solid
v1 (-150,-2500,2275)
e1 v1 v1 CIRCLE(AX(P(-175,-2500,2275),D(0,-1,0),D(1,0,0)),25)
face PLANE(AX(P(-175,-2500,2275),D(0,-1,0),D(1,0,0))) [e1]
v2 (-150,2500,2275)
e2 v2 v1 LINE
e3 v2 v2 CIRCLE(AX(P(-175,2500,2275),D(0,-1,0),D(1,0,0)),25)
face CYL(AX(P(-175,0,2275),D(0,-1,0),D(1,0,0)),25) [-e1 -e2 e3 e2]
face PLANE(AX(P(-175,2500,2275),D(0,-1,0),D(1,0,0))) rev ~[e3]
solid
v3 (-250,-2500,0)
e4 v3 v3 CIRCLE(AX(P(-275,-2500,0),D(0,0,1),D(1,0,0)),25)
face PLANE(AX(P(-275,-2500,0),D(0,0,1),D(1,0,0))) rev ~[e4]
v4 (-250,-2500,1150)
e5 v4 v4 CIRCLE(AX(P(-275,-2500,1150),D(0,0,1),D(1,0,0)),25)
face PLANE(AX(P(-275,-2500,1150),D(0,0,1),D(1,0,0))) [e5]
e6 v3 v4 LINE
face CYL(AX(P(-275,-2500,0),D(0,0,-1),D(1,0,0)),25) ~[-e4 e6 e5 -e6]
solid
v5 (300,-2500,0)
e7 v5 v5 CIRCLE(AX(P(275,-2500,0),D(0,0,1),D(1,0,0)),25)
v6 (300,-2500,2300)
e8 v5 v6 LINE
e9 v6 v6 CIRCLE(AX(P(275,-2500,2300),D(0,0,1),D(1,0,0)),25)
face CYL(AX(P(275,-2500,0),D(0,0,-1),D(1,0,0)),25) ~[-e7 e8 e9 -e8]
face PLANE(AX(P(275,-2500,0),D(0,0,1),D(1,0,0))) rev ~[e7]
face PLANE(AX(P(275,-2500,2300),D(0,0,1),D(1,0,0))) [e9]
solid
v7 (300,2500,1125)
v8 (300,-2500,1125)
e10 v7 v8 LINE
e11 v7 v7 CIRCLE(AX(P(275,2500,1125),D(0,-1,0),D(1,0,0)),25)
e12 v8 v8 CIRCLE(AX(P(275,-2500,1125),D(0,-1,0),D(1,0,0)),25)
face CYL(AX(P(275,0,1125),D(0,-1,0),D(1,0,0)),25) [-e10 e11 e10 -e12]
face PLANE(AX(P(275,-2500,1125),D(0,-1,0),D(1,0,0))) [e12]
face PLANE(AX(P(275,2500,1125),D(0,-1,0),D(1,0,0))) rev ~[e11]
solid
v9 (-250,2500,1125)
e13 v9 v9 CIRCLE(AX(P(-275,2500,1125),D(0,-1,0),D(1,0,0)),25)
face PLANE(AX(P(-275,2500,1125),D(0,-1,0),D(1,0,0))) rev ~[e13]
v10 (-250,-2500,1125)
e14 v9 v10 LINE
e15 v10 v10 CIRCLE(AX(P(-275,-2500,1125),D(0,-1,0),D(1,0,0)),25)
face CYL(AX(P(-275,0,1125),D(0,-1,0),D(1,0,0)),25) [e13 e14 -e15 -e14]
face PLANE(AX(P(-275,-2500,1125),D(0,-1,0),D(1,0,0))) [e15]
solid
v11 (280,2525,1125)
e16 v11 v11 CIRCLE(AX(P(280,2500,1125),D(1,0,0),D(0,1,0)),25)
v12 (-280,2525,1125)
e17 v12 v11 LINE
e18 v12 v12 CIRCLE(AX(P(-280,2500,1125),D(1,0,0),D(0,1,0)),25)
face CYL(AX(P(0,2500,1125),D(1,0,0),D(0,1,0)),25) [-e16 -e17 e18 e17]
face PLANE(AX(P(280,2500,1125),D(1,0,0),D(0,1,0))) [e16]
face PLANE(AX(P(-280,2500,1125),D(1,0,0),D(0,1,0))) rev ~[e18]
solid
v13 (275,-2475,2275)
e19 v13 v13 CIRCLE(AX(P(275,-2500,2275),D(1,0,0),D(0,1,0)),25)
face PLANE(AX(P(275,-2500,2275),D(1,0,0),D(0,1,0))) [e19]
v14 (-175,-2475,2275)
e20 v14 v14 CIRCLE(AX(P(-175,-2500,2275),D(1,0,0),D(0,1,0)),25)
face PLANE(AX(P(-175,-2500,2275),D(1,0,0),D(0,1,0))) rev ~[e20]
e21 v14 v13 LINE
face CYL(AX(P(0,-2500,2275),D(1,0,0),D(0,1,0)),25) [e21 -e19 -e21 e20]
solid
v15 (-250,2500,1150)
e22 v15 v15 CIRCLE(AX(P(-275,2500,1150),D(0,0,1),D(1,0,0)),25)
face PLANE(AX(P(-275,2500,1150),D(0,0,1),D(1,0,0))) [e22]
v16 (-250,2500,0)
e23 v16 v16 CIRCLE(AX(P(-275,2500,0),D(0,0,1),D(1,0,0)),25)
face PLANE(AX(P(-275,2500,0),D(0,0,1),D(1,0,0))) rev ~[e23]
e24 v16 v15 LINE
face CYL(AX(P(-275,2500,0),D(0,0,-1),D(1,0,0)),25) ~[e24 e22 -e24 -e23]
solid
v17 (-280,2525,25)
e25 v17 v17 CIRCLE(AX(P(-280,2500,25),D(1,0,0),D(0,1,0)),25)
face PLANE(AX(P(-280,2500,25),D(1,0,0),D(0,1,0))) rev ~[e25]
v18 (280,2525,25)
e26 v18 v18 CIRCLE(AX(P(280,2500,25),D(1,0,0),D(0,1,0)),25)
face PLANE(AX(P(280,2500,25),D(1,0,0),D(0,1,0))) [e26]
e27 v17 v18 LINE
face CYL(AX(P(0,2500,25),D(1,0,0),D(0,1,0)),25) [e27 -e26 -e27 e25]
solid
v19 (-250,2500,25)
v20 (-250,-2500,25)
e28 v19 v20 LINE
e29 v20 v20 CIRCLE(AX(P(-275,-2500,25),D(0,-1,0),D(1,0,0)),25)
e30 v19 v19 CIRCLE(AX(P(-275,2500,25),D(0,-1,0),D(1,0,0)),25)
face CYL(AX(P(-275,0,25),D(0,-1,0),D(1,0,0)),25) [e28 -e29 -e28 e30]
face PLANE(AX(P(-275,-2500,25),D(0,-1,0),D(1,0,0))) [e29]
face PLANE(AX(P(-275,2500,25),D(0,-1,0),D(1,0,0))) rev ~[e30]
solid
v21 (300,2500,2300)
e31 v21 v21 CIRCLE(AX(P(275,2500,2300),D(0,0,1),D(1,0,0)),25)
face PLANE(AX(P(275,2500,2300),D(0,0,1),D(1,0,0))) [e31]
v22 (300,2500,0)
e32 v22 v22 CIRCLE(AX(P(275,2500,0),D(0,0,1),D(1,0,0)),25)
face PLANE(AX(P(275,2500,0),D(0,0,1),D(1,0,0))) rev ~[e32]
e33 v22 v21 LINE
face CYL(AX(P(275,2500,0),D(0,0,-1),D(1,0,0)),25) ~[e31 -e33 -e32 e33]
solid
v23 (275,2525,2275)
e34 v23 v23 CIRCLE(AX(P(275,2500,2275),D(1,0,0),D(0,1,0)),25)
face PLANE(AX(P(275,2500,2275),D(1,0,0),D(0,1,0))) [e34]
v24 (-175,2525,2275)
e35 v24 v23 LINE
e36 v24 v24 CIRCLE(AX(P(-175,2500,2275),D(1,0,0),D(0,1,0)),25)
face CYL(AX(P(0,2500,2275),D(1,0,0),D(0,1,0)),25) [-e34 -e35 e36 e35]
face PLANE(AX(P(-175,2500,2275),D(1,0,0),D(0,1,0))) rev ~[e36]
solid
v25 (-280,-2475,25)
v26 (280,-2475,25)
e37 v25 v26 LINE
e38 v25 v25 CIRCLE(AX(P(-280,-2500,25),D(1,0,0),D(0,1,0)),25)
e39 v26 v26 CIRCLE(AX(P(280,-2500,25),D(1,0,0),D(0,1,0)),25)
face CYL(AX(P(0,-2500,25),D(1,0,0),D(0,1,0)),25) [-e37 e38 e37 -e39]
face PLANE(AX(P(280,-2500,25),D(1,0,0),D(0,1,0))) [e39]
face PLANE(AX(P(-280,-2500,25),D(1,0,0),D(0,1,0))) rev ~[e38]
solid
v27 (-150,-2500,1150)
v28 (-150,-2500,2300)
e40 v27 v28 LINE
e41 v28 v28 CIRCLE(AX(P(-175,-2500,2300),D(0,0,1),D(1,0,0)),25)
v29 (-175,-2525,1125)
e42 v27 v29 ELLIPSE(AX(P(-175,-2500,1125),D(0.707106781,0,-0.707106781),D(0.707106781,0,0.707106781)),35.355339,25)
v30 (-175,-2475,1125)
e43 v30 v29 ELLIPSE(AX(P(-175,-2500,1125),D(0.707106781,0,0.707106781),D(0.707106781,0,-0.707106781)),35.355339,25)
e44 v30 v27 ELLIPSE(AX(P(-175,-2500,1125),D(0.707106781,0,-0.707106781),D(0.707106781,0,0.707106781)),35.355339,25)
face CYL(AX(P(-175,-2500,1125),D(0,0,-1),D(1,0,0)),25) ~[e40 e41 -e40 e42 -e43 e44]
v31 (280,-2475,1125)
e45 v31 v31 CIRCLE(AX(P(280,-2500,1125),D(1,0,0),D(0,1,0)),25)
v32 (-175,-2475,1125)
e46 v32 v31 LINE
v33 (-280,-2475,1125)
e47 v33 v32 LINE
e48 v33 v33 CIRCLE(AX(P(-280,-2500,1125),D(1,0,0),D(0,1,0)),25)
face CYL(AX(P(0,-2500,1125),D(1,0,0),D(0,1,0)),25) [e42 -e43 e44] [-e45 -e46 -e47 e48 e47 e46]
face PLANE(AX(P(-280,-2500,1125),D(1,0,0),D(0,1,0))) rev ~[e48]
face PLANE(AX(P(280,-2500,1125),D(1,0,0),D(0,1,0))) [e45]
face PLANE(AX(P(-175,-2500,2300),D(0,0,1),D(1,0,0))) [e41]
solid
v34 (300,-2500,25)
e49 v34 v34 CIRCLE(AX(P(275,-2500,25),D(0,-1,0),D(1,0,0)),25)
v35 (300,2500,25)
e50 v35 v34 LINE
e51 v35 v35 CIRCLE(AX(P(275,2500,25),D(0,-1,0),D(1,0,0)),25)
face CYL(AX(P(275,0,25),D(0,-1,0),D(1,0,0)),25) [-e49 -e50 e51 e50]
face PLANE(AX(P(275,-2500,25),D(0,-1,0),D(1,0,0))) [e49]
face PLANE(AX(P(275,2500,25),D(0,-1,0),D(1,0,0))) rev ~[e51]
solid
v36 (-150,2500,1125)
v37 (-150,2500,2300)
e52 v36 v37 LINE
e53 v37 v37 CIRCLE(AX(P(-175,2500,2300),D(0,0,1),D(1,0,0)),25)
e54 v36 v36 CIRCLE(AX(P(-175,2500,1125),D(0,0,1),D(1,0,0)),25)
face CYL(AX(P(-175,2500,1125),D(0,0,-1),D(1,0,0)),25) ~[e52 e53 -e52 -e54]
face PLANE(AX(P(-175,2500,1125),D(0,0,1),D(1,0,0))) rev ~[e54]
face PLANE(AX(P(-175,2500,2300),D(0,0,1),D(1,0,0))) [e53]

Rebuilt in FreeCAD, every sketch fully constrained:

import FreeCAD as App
import Part
import Sketcher

doc = App.newDocument("Part")
body = doc.addObject("PartDesign::Body", "Body")

# Sketch on XY plane
sketch1 = body.newObject("Sketcher::SketchObject", "Sketch")
sketch1.AttachmentSupport = (doc.getObject("XY_Plane"), [""])
sketch1.MapMode = "FlatFace"
sketch1.addGeometry(Part.Circle(App.Vector(275, 2500, 0), App.Vector(0, 0, 1), 25), False)
sketch1.addConstraint([
    Sketcher.Constraint("Diameter", 0, 50.0),
    Sketcher.Constraint("DistanceX", -1, 1, 0, 3, 275.0),
    Sketcher.Constraint("DistanceY", -1, 1, 0, 3, 2500.0),
])
pad1 = body.newObject("PartDesign::Pad", "Pad")
pad1.Profile = sketch1
pad1.Length = 2300
body2 = doc.addObject("PartDesign::Body", "Body001")

# Sketch on XY plane
sketch2 = body2.newObject("Sketcher::SketchObject", "Sketch001")
sketch2.AttachmentSupport = (doc.getObject("XY_Plane001"), [""])
sketch2.MapMode = "FlatFace"
sketch2.addGeometry(Part.Circle(App.Vector(275, -2500, 0), App.Vector(0, 0, 1), 25), False)
sketch2.addConstraint([
    Sketcher.Constraint("Diameter", 0, 50.0),
    Sketcher.Constraint("DistanceX", -1, 1, 0, 3, 275.0),
    Sketcher.Constraint("DistanceY", 0, 3, -1, 1, 2500.0),
])
pad2 = body2.newObject("PartDesign::Pad", "Pad001")
pad2.Profile = sketch2
pad2.Length = 2300
body3 = doc.addObject("PartDesign::Body", "Body002")

# Sketch on XY plane
sketch3 = body3.newObject("Sketcher::SketchObject", "Sketch002")
sketch3.AttachmentSupport = (doc.getObject("XY_Plane002"), [""])
sketch3.MapMode = "FlatFace"
sketch3.addGeometry(Part.Circle(App.Vector(-275, -2500, 0), App.Vector(0, 0, 1), 25), False)
sketch3.addConstraint([
    Sketcher.Constraint("Diameter", 0, 50.0),
    Sketcher.Constraint("DistanceX", 0, 3, -1, 1, 275.0),
    Sketcher.Constraint("DistanceY", 0, 3, -1, 1, 2500.0),
])
pad3 = body3.newObject("PartDesign::Pad", "Pad002")
pad3.Profile = sketch3
pad3.Length = 1150
body4 = doc.addObject("PartDesign::Body", "Body003")

# Sketch on XY plane
sketch4 = body4.newObject("Sketcher::SketchObject", "Sketch003")
sketch4.AttachmentSupport = (doc.getObject("XY_Plane003"), [""])
sketch4.MapMode = "FlatFace"
sketch4.addGeometry(Part.Circle(App.Vector(-275, 2500, 0), App.Vector(0, 0, 1), 25), False)
sketch4.addConstraint([
    Sketcher.Constraint("Diameter", 0, 50.0),
    Sketcher.Constraint("DistanceX", 0, 3, -1, 1, 275.0),
    Sketcher.Constraint("DistanceY", -1, 1, 0, 3, 2500.0),
])
pad4 = body4.newObject("PartDesign::Pad", "Pad003")
pad4.Profile = sketch4
pad4.Length = 1150
body5 = doc.addObject("PartDesign::Body", "Body004")

# Sketch on XZ plane
sketch5 = body5.newObject("Sketcher::SketchObject", "Sketch004")
sketch5.AttachmentSupport = (doc.getObject("XZ_Plane004"), [""])
sketch5.MapMode = "FlatFace"
sketch5.addGeometry(Part.Circle(App.Vector(275, 25, 0), App.Vector(0, 0, 1), 25), False)
sketch5.addConstraint([
    Sketcher.Constraint("Diameter", 0, 50.0),
    Sketcher.Constraint("DistanceX", -1, 1, 0, 3, 275.0),
    Sketcher.Constraint("DistanceY", -1, 1, 0, 3, 25.0),
])
pad5 = body5.newObject("PartDesign::Pad", "Pad004")
pad5.Profile = sketch5
pad5.Type = "TwoLengths"
pad5.Length = 2500
pad5.Length2 = 2500
body6 = doc.addObject("PartDesign::Body", "Body005")

# Sketch on XZ plane
sketch6 = body6.newObject("Sketcher::SketchObject", "Sketch005")
sketch6.AttachmentSupport = (doc.getObject("XZ_Plane005"), [""])
sketch6.MapMode = "FlatFace"
sketch6.addGeometry(Part.Circle(App.Vector(275, 1125, 0), App.Vector(0, 0, 1), 25), False)
sketch6.addConstraint([
    Sketcher.Constraint("Diameter", 0, 50.0),
    Sketcher.Constraint("DistanceX", -1, 1, 0, 3, 275.0),
    Sketcher.Constraint("DistanceY", -1, 1, 0, 3, 1125.0),
])
pad6 = body6.newObject("PartDesign::Pad", "Pad005")
pad6.Profile = sketch6
pad6.Type = "TwoLengths"
pad6.Length = 2500
pad6.Length2 = 2500
body7 = doc.addObject("PartDesign::Body", "Body006")

# Sketch on XZ plane
sketch7 = body7.newObject("Sketcher::SketchObject", "Sketch006")
sketch7.AttachmentSupport = (doc.getObject("XZ_Plane006"), [""])
sketch7.MapMode = "FlatFace"
sketch7.addGeometry(Part.Circle(App.Vector(-275, 1125, 0), App.Vector(0, 0, 1), 25), False)
sketch7.addConstraint([
    Sketcher.Constraint("Diameter", 0, 50.0),
    Sketcher.Constraint("DistanceX", 0, 3, -1, 1, 275.0),
    Sketcher.Constraint("DistanceY", -1, 1, 0, 3, 1125.0),
])
pad7 = body7.newObject("PartDesign::Pad", "Pad006")
pad7.Profile = sketch7
pad7.Type = "TwoLengths"
pad7.Length = 2500
pad7.Length2 = 2500
body8 = doc.addObject("PartDesign::Body", "Body007")

# Sketch on XZ plane
sketch8 = body8.newObject("Sketcher::SketchObject", "Sketch007")
sketch8.AttachmentSupport = (doc.getObject("XZ_Plane007"), [""])
sketch8.MapMode = "FlatFace"
sketch8.addGeometry(Part.Circle(App.Vector(-275, 25, 0), App.Vector(0, 0, 1), 25), False)
sketch8.addConstraint([
    Sketcher.Constraint("Diameter", 0, 50.0),
    Sketcher.Constraint("DistanceX", 0, 3, -1, 1, 275.0),
    Sketcher.Constraint("DistanceY", -1, 1, 0, 3, 25.0),
])
pad8 = body8.newObject("PartDesign::Pad", "Pad007")
pad8.Profile = sketch8
pad8.Type = "TwoLengths"
pad8.Length = 2500
pad8.Length2 = 2500
body9 = doc.addObject("PartDesign::Body", "Body008")

# Sketch on XZ plane
sketch9 = body9.newObject("Sketcher::SketchObject", "Sketch008")
sketch9.AttachmentSupport = (doc.getObject("XZ_Plane008"), [""])
sketch9.MapMode = "FlatFace"
sketch9.addGeometry(Part.Circle(App.Vector(-175, 2275, 0), App.Vector(0, 0, 1), 25), False)
sketch9.addConstraint([
    Sketcher.Constraint("Diameter", 0, 50.0),
    Sketcher.Constraint("DistanceX", 0, 3, -1, 1, 175.0),
    Sketcher.Constraint("DistanceY", -1, 1, 0, 3, 2275.0),
])
pad9 = body9.newObject("PartDesign::Pad", "Pad008")
pad9.Profile = sketch9
pad9.Type = "TwoLengths"
pad9.Length = 2500
pad9.Length2 = 2500
body10 = doc.addObject("PartDesign::Body", "Body009")

# Sketch on YZ plane
sketch10 = body10.newObject("Sketcher::SketchObject", "Sketch009")
sketch10.AttachmentSupport = (doc.getObject("YZ_Plane009"), [""])
sketch10.MapMode = "FlatFace"
sketch10.addGeometry(Part.Circle(App.Vector(2500, 25, 0), App.Vector(0, 0, 1), 25), False)
sketch10.addConstraint([
    Sketcher.Constraint("Diameter", 0, 50.0),
    Sketcher.Constraint("DistanceX", -1, 1, 0, 3, 2500.0),
    Sketcher.Constraint("DistanceY", -1, 1, 0, 3, 25.0),
])
pad10 = body10.newObject("PartDesign::Pad", "Pad009")
pad10.Profile = sketch10
pad10.Type = "TwoLengths"
pad10.Length = 280
pad10.Length2 = 280
body11 = doc.addObject("PartDesign::Body", "Body010")

# Sketch on YZ plane
sketch11 = body11.newObject("Sketcher::SketchObject", "Sketch010")
sketch11.AttachmentSupport = (doc.getObject("YZ_Plane010"), [""])
sketch11.MapMode = "FlatFace"
sketch11.addGeometry(Part.Circle(App.Vector(-2500, 25, 0), App.Vector(0, 0, 1), 25), False)
sketch11.addConstraint([
    Sketcher.Constraint("Diameter", 0, 50.0),
    Sketcher.Constraint("DistanceX", 0, 3, -1, 1, 2500.0),
    Sketcher.Constraint("DistanceY", -1, 1, 0, 3, 25.0),
])
pad11 = body11.newObject("PartDesign::Pad", "Pad010")
pad11.Profile = sketch11
pad11.Type = "TwoLengths"
pad11.Length = 280
pad11.Length2 = 280
body12 = doc.addObject("PartDesign::Body", "Body011")
body12.AllowCompound = True

# Sketch on YZ plane
sketch12 = body12.newObject("Sketcher::SketchObject", "Sketch011")
sketch12.AttachmentSupport = (doc.getObject("YZ_Plane011"), [""])
sketch12.MapMode = "FlatFace"
sketch12.addGeometry(Part.Circle(App.Vector(-2500, 1125, 0), App.Vector(0, 0, 1), 25), False)
sketch12.addConstraint([
    Sketcher.Constraint("Diameter", 0, 50.0),
    Sketcher.Constraint("DistanceX", 0, 3, -1, 1, 2500.0),
    Sketcher.Constraint("DistanceY", -1, 1, 0, 3, 1125.0),
])
pad12 = body12.newObject("PartDesign::Pad", "Pad011")
pad12.Profile = sketch12
pad12.Type = "TwoLengths"
pad12.Length = 280
pad12.Length2 = 280

# Sketch on XY plane
sketch13 = body12.newObject("Sketcher::SketchObject", "Sketch012")
sketch13.AttachmentSupport = (doc.getObject("XY_Plane011"), [""])
sketch13.MapMode = "FlatFace"
sketch13.AttachmentOffset = App.Placement(App.Vector(0, 0, 1125), App.Rotation())
sketch13.addGeometry([
    Part.Circle(App.Vector(-175, -2500, 0), App.Vector(0, 0, 1), 25),
    Part.Circle(App.Vector(-175, 2500, 0), App.Vector(0, 0, 1), 25),
], False)
sketch13.addConstraint([
    Sketcher.Constraint("Equal", 0, 1),
    Sketcher.Constraint("Symmetric", 0, 3, 1, 3, -1),
    Sketcher.Constraint("Diameter", 0, 50.0),
    Sketcher.Constraint("DistanceX", 0, 3, -1, 1, 175.0),
    Sketcher.Constraint("DistanceY", 0, 3, -1, 1, 2500.0),
])
pad13 = body12.newObject("PartDesign::Pad", "Pad012")
pad13.Profile = sketch13
pad13.Length = 1175
body13 = doc.addObject("PartDesign::Body", "Body012")

# Sketch on YZ plane
sketch14 = body13.newObject("Sketcher::SketchObject", "Sketch013")
sketch14.AttachmentSupport = (doc.getObject("YZ_Plane012"), [""])
sketch14.MapMode = "FlatFace"
sketch14.addGeometry(Part.Circle(App.Vector(2500, 1125, 0), App.Vector(0, 0, 1), 25), False)
sketch14.addConstraint([
    Sketcher.Constraint("Diameter", 0, 50.0),
    Sketcher.Constraint("DistanceX", -1, 1, 0, 3, 2500.0),
    Sketcher.Constraint("DistanceY", -1, 1, 0, 3, 1125.0),
])
pad14 = body13.newObject("PartDesign::Pad", "Pad013")
pad14.Profile = sketch14
pad14.Type = "TwoLengths"
pad14.Length = 280
pad14.Length2 = 280
body14 = doc.addObject("PartDesign::Body", "Body013")

# Sketch on YZ plane
sketch15 = body14.newObject("Sketcher::SketchObject", "Sketch014")
sketch15.AttachmentSupport = (doc.getObject("YZ_Plane013"), [""])
sketch15.MapMode = "FlatFace"
sketch15.addGeometry(Part.Circle(App.Vector(-2500, 2275, 0), App.Vector(0, 0, 1), 25), False)
sketch15.addConstraint([
    Sketcher.Constraint("Diameter", 0, 50.0),
    Sketcher.Constraint("DistanceX", 0, 3, -1, 1, 2500.0),
    Sketcher.Constraint("DistanceY", -1, 1, 0, 3, 2275.0),
])
pad15 = body14.newObject("PartDesign::Pad", "Pad014")
pad15.Profile = sketch15
pad15.Type = "TwoLengths"
pad15.Length = 275
pad15.Length2 = 175
body15 = doc.addObject("PartDesign::Body", "Body014")

# Sketch on YZ plane
sketch16 = body15.newObject("Sketcher::SketchObject", "Sketch015")
sketch16.AttachmentSupport = (doc.getObject("YZ_Plane014"), [""])
sketch16.MapMode = "FlatFace"
sketch16.addGeometry(Part.Circle(App.Vector(2500, 2275, 0), App.Vector(0, 0, 1), 25), False)
sketch16.addConstraint([
    Sketcher.Constraint("Diameter", 0, 50.0),
    Sketcher.Constraint("DistanceX", -1, 1, 0, 3, 2500.0),
    Sketcher.Constraint("DistanceY", -1, 1, 0, 3, 2275.0),
])
pad16 = body15.newObject("PartDesign::Pad", "Pad015")
pad16.Profile = sketch16
pad16.Type = "TwoLengths"
pad16.Length = 275
pad16.Length2 = 175

doc.recompute()
